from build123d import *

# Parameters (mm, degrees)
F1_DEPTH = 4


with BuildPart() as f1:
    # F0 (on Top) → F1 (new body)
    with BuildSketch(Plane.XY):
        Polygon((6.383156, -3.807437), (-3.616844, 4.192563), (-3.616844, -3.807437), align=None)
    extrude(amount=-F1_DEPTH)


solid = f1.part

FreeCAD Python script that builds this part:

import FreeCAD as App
import Part
import Sketcher
Q = App.Units.Quantity

doc = App.newDocument("Part")
body = doc.addObject("PartDesign::Body", "Body")

# Sketch on XY plane
sketch1 = doc.addObject("Sketcher::SketchObject", "Sketch")
body.addObject(sketch1)
sketch1.AttachmentSupport = (doc.XY_Plane, [""])
sketch1.MapMode = "FlatFace"
sketch1.addGeometry(Part.LineSegment(App.Vector(6, -4, 0), App.Vector(-4, 4, 0)), False)
sketch1.addGeometry(Part.LineSegment(App.Vector(-4, 4, 0), App.Vector(-4, -4, 0)), False)
sketch1.addGeometry(Part.LineSegment(App.Vector(-4, -4, 0), App.Vector(6, -4, 0)), False)
sketch1.addConstraint(Sketcher.Constraint("Coincident", 0, 2, 1, 1))
sketch1.addConstraint(Sketcher.Constraint("Coincident", 1, 2, 2, 1))
sketch1.addConstraint(Sketcher.Constraint("Coincident", 2, 2, 0, 1))
sketch1.addConstraint(Sketcher.Constraint("Vertical", 1))
sketch1.addConstraint(Sketcher.Constraint("Horizontal", 2))
sketch1.addConstraint(Sketcher.Constraint("DistanceX", 2, 1, 2, 2, Q("10 mm")))
sketch1.addConstraint(Sketcher.Constraint("DistanceY", 1, 2, 1, 1, Q("8 mm")))
sketch1.addConstraint(Sketcher.Constraint("DistanceX", 0, 2, -1, 1, Q("3.616844 mm")))
sketch1.addConstraint(Sketcher.Constraint("DistanceY", -1, 1, 0, 2, Q("4.192563 mm")))
pad1 = doc.addObject("PartDesign::Pad", "Pad")
body.addObject(pad1)
pad1.Profile = sketch1
pad1.Length = 4
pad1.Reversed = True

doc.recompute()
